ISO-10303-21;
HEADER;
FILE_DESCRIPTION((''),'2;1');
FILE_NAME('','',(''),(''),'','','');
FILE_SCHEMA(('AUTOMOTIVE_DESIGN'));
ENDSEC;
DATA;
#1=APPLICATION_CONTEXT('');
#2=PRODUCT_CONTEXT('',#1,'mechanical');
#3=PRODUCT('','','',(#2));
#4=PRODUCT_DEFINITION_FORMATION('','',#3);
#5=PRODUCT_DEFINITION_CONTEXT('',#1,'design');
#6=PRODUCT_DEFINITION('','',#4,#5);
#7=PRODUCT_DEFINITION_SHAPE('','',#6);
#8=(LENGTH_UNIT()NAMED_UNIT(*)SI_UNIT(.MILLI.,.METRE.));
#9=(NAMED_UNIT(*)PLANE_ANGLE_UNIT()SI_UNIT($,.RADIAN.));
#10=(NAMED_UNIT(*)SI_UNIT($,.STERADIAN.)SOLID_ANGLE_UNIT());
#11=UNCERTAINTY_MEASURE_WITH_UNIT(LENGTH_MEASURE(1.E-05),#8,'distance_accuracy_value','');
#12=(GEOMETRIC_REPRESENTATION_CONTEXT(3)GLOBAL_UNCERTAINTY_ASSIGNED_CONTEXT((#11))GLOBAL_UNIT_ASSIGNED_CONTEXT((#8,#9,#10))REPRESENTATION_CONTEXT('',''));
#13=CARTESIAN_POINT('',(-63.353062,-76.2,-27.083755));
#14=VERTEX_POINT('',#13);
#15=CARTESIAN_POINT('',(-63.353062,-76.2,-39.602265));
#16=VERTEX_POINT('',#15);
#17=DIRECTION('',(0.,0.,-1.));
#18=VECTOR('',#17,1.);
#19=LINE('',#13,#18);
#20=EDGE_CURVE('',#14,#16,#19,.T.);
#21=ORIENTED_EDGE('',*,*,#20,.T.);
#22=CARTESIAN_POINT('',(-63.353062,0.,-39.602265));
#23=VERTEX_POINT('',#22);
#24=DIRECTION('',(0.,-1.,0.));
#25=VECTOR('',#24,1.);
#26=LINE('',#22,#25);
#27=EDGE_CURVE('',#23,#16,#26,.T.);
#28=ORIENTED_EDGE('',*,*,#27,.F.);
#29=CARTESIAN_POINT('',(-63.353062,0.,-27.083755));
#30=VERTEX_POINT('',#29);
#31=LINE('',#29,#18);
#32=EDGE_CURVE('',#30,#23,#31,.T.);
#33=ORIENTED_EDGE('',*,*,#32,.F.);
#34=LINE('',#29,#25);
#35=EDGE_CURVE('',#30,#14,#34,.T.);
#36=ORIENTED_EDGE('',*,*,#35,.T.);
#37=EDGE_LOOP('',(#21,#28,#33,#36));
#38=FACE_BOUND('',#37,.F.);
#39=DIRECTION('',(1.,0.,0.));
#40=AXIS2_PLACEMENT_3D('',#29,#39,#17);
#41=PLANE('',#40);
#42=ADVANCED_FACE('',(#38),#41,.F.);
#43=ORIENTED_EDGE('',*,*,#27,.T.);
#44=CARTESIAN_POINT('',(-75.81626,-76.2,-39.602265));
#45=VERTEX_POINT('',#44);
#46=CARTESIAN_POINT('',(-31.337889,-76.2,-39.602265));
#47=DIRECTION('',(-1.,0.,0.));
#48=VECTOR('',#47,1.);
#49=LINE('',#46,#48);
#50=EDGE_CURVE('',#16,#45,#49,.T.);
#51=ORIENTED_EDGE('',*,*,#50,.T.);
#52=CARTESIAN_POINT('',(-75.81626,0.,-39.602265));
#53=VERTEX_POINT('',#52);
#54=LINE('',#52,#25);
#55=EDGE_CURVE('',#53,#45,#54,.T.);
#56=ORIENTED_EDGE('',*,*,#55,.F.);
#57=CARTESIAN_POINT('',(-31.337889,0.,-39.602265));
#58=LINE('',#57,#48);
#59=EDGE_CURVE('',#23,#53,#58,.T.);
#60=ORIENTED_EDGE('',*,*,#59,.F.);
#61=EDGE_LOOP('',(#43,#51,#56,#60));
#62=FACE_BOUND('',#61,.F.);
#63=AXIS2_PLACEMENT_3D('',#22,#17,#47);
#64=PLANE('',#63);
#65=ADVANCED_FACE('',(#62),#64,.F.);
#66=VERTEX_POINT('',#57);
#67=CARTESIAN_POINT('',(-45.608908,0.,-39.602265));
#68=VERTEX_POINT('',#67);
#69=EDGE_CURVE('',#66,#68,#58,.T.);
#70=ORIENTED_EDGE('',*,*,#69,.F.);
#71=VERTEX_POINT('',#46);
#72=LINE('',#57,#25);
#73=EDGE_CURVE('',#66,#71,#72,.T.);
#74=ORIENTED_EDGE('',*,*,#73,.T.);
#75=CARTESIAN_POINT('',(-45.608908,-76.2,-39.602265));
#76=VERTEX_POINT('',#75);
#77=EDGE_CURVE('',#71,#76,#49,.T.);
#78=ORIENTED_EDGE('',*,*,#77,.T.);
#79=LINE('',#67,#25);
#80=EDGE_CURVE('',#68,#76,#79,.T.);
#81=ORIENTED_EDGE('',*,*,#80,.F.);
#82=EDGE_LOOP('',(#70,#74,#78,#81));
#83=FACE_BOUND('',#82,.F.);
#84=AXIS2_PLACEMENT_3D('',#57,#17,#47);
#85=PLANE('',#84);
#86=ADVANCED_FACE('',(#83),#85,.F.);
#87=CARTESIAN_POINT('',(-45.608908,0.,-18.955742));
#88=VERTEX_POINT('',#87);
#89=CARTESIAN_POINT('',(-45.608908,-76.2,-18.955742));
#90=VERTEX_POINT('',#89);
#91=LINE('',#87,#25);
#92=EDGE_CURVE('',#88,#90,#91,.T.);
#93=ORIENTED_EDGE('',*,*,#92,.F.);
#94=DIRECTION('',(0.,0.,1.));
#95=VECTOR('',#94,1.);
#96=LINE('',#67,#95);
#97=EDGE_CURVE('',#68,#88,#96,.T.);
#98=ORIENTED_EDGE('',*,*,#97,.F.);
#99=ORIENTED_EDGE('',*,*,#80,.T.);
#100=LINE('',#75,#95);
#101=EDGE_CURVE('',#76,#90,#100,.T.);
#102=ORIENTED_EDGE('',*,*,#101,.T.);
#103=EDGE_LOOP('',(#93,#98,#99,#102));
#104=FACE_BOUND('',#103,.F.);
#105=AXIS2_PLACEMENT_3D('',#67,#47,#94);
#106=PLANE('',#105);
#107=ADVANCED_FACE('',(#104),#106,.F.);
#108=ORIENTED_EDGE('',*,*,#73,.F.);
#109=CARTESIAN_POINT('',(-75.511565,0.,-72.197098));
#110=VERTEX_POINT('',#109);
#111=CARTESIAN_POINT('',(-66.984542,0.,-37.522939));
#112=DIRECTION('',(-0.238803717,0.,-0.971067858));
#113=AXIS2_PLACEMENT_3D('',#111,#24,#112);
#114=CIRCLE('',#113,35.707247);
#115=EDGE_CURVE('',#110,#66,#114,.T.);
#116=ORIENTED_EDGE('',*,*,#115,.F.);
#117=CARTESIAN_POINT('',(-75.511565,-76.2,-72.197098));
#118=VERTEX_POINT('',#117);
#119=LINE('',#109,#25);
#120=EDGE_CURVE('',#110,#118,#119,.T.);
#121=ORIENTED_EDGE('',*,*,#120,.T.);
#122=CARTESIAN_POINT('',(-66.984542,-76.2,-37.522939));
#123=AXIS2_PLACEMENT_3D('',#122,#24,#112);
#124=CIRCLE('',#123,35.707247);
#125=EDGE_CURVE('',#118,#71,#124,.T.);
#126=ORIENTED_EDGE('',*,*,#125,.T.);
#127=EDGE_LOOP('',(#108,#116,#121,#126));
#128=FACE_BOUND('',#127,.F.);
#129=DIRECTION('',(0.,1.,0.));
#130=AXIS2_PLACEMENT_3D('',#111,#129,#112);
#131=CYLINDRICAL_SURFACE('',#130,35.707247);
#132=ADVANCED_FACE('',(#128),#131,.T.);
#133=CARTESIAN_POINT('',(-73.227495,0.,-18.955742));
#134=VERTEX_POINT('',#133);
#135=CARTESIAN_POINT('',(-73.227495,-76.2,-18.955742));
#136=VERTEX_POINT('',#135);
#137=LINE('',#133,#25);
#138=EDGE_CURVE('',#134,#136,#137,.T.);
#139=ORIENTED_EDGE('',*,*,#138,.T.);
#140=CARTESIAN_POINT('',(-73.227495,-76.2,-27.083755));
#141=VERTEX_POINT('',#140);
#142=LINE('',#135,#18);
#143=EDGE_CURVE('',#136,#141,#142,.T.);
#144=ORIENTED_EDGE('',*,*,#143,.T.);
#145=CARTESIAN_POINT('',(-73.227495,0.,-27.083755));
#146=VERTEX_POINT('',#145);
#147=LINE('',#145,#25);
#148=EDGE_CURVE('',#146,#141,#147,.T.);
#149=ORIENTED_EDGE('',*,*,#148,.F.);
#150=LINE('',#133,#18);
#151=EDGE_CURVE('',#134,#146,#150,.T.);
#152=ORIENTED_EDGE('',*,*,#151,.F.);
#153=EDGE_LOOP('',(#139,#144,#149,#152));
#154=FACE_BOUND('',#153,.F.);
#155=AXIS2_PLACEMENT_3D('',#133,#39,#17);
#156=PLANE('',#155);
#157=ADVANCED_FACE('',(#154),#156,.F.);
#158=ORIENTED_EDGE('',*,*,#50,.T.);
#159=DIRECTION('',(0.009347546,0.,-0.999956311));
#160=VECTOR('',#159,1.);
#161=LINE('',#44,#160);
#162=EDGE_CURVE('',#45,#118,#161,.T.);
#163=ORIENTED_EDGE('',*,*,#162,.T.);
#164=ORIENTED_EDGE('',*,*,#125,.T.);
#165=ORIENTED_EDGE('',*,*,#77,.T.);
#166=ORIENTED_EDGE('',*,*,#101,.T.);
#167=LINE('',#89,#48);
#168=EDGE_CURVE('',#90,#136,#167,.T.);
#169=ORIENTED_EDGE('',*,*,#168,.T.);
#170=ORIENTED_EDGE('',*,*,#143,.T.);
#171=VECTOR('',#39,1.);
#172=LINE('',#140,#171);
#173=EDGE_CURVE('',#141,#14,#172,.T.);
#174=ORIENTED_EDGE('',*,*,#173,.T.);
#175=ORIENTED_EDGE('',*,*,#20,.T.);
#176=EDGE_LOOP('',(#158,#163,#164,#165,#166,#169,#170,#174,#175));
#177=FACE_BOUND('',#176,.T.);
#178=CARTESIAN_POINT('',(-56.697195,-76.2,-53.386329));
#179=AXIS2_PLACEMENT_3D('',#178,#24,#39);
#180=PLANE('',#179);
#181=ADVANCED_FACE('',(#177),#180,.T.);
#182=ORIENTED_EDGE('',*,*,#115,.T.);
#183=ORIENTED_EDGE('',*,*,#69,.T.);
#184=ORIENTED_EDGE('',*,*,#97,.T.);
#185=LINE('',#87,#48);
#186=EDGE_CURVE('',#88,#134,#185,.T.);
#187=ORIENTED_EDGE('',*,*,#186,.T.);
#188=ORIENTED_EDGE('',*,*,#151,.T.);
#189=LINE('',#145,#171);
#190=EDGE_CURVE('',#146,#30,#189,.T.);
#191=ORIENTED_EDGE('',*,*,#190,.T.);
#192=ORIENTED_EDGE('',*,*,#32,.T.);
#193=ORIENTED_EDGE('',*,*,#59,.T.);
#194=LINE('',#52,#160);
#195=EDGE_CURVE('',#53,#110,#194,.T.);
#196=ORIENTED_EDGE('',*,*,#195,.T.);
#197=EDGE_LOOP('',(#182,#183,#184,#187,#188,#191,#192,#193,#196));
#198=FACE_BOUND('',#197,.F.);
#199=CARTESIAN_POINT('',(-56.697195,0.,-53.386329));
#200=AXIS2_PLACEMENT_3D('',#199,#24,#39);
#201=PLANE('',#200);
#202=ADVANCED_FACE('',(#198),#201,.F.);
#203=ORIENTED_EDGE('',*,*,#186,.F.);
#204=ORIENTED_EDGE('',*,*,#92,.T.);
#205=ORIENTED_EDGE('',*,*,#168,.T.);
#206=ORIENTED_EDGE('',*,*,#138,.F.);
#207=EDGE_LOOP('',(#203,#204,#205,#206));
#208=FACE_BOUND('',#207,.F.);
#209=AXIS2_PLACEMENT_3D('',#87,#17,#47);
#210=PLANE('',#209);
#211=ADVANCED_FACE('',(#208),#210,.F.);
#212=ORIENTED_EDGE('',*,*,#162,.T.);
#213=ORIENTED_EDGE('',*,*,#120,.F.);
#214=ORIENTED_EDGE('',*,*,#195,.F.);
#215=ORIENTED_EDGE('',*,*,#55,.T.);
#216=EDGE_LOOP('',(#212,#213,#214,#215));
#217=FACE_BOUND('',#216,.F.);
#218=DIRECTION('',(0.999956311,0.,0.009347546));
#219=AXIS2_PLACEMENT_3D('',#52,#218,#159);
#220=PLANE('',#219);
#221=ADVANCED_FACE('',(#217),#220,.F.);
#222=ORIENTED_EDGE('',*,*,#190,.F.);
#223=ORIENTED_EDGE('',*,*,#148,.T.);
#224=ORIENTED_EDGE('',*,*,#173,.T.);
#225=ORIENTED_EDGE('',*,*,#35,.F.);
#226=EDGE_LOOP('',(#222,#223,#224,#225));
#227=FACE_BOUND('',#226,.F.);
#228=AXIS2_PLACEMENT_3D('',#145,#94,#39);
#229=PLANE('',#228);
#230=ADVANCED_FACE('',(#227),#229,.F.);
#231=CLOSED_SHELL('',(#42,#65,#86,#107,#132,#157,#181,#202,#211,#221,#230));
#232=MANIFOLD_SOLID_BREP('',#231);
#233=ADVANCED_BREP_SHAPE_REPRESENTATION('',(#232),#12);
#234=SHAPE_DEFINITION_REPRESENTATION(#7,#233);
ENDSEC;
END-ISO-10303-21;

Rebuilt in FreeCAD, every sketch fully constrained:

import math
import FreeCAD as App
import Part
import Sketcher
from FreeCAD import Vector
Q = App.Units.Quantity

doc = App.newDocument("Part")
body = doc.addObject("PartDesign::Body", "Body")

sketch1 = body.newObject("Sketcher::SketchObject", "Sketch")
sketch1.AttachmentSupport = (doc.getObject("XZ_Plane"), [""])
sketch1.MapMode = "FlatFace"
sketch1.addGeometry(Part.LineSegment(Vector(-76, -40, 0), Vector(-76, -72, 0)), False)
sketch1.addGeometry(Part.ArcOfCircle(Part.Circle(Vector(-67, -38, 0), Vector(0, 0, 1), 36), math.radians(-104), math.radians(-3)), False)
sketch1.addGeometry(Part.LineSegment(Vector(-31, -40, 0), Vector(-46, -40, 0)), False)
sketch1.addGeometry(Part.LineSegment(Vector(-46, -40, 0), Vector(-46, -19, 0)), False)
sketch1.addGeometry(Part.LineSegment(Vector(-46, -19, 0), Vector(-73, -19, 0)), False)
sketch1.addGeometry(Part.LineSegment(Vector(-73, -19, 0), Vector(-73, -27, 0)), False)
sketch1.addGeometry(Part.LineSegment(Vector(-73, -27, 0), Vector(-63, -27, 0)), False)
sketch1.addGeometry(Part.LineSegment(Vector(-63, -27, 0), Vector(-63, -40, 0)), False)
sketch1.addGeometry(Part.LineSegment(Vector(-63, -40, 0), Vector(-76, -40, 0)), False)
sketch1.addConstraint(Sketcher.Constraint("Coincident", 0, 2, 1, 1))
sketch1.addConstraint(Sketcher.Constraint("Coincident", 1, 2, 2, 1))
sketch1.addConstraint(Sketcher.Constraint("Coincident", 2, 2, 3, 1))
sketch1.addConstraint(Sketcher.Constraint("Coincident", 3, 2, 4, 1))
sketch1.addConstraint(Sketcher.Constraint("Coincident", 4, 2, 5, 1))
sketch1.addConstraint(Sketcher.Constraint("Coincident", 5, 2, 6, 1))
sketch1.addConstraint(Sketcher.Constraint("Coincident", 6, 2, 7, 1))
sketch1.addConstraint(Sketcher.Constraint("Coincident", 7, 2, 8, 1))
sketch1.addConstraint(Sketcher.Constraint("Coincident", 8, 2, 0, 1))
sketch1.addConstraint(Sketcher.Constraint("Horizontal", 2))
sketch1.addConstraint(Sketcher.Constraint("Vertical", 3))
sketch1.addConstraint(Sketcher.Constraint("Horizontal", 4))
sketch1.addConstraint(Sketcher.Constraint("Vertical", 5))
sketch1.addConstraint(Sketcher.Constraint("Horizontal", 6))
sketch1.addConstraint(Sketcher.Constraint("Vertical", 7))
sketch1.addConstraint(Sketcher.Constraint("Horizontal", 8))
sketch1.addConstraint(Sketcher.Constraint("Horizontal", 2, 2, 7, 2))
sketch1.addConstraint(Sketcher.Constraint("Radius", 1, Q("35.707247 mm")))
sketch1.addConstraint(Sketcher.Constraint("DistanceX", 2, 2, 2, 1, Q("14.271019 mm")))
sketch1.addConstraint(Sketcher.Constraint("DistanceY", 7, 2, 7, 1, Q("12.51851 mm")))
sketch1.addConstraint(Sketcher.Constraint("DistanceX", 4, 2, 4, 1, Q("27.618587 mm")))
sketch1.addConstraint(Sketcher.Constraint("DistanceX", 6, 1, 6, 2, Q("9.874433 mm")))
sketch1.addConstraint(Sketcher.Constraint("DistanceX", 8, 2, 8, 1, Q("12.463198 mm")))
sketch1.addConstraint(Sketcher.Constraint("DistanceY", 3, 1, 3, 2, Q("20.646523 mm")))
sketch1.addConstraint(Sketcher.Constraint("DistanceX", 1, 3, -1, 1, Q("66.984542 mm")))
sketch1.addConstraint(Sketcher.Constraint("DistanceY", 1, 3, -1, 1, Q("37.522939 mm")))
sketch1.addConstraint(Sketcher.Constraint("DistanceX", 1, 2, -1, 1, Q("31.337889 mm")))
sketch1.addConstraint(Sketcher.Constraint("DistanceY", 0, 2, 1, 3, Q("34.674159 mm")))
pad1 = body.newObject("PartDesign::Pad", "Pad")
pad1.Profile = sketch1
pad1.Length = Q("3 in")

doc.recompute()
